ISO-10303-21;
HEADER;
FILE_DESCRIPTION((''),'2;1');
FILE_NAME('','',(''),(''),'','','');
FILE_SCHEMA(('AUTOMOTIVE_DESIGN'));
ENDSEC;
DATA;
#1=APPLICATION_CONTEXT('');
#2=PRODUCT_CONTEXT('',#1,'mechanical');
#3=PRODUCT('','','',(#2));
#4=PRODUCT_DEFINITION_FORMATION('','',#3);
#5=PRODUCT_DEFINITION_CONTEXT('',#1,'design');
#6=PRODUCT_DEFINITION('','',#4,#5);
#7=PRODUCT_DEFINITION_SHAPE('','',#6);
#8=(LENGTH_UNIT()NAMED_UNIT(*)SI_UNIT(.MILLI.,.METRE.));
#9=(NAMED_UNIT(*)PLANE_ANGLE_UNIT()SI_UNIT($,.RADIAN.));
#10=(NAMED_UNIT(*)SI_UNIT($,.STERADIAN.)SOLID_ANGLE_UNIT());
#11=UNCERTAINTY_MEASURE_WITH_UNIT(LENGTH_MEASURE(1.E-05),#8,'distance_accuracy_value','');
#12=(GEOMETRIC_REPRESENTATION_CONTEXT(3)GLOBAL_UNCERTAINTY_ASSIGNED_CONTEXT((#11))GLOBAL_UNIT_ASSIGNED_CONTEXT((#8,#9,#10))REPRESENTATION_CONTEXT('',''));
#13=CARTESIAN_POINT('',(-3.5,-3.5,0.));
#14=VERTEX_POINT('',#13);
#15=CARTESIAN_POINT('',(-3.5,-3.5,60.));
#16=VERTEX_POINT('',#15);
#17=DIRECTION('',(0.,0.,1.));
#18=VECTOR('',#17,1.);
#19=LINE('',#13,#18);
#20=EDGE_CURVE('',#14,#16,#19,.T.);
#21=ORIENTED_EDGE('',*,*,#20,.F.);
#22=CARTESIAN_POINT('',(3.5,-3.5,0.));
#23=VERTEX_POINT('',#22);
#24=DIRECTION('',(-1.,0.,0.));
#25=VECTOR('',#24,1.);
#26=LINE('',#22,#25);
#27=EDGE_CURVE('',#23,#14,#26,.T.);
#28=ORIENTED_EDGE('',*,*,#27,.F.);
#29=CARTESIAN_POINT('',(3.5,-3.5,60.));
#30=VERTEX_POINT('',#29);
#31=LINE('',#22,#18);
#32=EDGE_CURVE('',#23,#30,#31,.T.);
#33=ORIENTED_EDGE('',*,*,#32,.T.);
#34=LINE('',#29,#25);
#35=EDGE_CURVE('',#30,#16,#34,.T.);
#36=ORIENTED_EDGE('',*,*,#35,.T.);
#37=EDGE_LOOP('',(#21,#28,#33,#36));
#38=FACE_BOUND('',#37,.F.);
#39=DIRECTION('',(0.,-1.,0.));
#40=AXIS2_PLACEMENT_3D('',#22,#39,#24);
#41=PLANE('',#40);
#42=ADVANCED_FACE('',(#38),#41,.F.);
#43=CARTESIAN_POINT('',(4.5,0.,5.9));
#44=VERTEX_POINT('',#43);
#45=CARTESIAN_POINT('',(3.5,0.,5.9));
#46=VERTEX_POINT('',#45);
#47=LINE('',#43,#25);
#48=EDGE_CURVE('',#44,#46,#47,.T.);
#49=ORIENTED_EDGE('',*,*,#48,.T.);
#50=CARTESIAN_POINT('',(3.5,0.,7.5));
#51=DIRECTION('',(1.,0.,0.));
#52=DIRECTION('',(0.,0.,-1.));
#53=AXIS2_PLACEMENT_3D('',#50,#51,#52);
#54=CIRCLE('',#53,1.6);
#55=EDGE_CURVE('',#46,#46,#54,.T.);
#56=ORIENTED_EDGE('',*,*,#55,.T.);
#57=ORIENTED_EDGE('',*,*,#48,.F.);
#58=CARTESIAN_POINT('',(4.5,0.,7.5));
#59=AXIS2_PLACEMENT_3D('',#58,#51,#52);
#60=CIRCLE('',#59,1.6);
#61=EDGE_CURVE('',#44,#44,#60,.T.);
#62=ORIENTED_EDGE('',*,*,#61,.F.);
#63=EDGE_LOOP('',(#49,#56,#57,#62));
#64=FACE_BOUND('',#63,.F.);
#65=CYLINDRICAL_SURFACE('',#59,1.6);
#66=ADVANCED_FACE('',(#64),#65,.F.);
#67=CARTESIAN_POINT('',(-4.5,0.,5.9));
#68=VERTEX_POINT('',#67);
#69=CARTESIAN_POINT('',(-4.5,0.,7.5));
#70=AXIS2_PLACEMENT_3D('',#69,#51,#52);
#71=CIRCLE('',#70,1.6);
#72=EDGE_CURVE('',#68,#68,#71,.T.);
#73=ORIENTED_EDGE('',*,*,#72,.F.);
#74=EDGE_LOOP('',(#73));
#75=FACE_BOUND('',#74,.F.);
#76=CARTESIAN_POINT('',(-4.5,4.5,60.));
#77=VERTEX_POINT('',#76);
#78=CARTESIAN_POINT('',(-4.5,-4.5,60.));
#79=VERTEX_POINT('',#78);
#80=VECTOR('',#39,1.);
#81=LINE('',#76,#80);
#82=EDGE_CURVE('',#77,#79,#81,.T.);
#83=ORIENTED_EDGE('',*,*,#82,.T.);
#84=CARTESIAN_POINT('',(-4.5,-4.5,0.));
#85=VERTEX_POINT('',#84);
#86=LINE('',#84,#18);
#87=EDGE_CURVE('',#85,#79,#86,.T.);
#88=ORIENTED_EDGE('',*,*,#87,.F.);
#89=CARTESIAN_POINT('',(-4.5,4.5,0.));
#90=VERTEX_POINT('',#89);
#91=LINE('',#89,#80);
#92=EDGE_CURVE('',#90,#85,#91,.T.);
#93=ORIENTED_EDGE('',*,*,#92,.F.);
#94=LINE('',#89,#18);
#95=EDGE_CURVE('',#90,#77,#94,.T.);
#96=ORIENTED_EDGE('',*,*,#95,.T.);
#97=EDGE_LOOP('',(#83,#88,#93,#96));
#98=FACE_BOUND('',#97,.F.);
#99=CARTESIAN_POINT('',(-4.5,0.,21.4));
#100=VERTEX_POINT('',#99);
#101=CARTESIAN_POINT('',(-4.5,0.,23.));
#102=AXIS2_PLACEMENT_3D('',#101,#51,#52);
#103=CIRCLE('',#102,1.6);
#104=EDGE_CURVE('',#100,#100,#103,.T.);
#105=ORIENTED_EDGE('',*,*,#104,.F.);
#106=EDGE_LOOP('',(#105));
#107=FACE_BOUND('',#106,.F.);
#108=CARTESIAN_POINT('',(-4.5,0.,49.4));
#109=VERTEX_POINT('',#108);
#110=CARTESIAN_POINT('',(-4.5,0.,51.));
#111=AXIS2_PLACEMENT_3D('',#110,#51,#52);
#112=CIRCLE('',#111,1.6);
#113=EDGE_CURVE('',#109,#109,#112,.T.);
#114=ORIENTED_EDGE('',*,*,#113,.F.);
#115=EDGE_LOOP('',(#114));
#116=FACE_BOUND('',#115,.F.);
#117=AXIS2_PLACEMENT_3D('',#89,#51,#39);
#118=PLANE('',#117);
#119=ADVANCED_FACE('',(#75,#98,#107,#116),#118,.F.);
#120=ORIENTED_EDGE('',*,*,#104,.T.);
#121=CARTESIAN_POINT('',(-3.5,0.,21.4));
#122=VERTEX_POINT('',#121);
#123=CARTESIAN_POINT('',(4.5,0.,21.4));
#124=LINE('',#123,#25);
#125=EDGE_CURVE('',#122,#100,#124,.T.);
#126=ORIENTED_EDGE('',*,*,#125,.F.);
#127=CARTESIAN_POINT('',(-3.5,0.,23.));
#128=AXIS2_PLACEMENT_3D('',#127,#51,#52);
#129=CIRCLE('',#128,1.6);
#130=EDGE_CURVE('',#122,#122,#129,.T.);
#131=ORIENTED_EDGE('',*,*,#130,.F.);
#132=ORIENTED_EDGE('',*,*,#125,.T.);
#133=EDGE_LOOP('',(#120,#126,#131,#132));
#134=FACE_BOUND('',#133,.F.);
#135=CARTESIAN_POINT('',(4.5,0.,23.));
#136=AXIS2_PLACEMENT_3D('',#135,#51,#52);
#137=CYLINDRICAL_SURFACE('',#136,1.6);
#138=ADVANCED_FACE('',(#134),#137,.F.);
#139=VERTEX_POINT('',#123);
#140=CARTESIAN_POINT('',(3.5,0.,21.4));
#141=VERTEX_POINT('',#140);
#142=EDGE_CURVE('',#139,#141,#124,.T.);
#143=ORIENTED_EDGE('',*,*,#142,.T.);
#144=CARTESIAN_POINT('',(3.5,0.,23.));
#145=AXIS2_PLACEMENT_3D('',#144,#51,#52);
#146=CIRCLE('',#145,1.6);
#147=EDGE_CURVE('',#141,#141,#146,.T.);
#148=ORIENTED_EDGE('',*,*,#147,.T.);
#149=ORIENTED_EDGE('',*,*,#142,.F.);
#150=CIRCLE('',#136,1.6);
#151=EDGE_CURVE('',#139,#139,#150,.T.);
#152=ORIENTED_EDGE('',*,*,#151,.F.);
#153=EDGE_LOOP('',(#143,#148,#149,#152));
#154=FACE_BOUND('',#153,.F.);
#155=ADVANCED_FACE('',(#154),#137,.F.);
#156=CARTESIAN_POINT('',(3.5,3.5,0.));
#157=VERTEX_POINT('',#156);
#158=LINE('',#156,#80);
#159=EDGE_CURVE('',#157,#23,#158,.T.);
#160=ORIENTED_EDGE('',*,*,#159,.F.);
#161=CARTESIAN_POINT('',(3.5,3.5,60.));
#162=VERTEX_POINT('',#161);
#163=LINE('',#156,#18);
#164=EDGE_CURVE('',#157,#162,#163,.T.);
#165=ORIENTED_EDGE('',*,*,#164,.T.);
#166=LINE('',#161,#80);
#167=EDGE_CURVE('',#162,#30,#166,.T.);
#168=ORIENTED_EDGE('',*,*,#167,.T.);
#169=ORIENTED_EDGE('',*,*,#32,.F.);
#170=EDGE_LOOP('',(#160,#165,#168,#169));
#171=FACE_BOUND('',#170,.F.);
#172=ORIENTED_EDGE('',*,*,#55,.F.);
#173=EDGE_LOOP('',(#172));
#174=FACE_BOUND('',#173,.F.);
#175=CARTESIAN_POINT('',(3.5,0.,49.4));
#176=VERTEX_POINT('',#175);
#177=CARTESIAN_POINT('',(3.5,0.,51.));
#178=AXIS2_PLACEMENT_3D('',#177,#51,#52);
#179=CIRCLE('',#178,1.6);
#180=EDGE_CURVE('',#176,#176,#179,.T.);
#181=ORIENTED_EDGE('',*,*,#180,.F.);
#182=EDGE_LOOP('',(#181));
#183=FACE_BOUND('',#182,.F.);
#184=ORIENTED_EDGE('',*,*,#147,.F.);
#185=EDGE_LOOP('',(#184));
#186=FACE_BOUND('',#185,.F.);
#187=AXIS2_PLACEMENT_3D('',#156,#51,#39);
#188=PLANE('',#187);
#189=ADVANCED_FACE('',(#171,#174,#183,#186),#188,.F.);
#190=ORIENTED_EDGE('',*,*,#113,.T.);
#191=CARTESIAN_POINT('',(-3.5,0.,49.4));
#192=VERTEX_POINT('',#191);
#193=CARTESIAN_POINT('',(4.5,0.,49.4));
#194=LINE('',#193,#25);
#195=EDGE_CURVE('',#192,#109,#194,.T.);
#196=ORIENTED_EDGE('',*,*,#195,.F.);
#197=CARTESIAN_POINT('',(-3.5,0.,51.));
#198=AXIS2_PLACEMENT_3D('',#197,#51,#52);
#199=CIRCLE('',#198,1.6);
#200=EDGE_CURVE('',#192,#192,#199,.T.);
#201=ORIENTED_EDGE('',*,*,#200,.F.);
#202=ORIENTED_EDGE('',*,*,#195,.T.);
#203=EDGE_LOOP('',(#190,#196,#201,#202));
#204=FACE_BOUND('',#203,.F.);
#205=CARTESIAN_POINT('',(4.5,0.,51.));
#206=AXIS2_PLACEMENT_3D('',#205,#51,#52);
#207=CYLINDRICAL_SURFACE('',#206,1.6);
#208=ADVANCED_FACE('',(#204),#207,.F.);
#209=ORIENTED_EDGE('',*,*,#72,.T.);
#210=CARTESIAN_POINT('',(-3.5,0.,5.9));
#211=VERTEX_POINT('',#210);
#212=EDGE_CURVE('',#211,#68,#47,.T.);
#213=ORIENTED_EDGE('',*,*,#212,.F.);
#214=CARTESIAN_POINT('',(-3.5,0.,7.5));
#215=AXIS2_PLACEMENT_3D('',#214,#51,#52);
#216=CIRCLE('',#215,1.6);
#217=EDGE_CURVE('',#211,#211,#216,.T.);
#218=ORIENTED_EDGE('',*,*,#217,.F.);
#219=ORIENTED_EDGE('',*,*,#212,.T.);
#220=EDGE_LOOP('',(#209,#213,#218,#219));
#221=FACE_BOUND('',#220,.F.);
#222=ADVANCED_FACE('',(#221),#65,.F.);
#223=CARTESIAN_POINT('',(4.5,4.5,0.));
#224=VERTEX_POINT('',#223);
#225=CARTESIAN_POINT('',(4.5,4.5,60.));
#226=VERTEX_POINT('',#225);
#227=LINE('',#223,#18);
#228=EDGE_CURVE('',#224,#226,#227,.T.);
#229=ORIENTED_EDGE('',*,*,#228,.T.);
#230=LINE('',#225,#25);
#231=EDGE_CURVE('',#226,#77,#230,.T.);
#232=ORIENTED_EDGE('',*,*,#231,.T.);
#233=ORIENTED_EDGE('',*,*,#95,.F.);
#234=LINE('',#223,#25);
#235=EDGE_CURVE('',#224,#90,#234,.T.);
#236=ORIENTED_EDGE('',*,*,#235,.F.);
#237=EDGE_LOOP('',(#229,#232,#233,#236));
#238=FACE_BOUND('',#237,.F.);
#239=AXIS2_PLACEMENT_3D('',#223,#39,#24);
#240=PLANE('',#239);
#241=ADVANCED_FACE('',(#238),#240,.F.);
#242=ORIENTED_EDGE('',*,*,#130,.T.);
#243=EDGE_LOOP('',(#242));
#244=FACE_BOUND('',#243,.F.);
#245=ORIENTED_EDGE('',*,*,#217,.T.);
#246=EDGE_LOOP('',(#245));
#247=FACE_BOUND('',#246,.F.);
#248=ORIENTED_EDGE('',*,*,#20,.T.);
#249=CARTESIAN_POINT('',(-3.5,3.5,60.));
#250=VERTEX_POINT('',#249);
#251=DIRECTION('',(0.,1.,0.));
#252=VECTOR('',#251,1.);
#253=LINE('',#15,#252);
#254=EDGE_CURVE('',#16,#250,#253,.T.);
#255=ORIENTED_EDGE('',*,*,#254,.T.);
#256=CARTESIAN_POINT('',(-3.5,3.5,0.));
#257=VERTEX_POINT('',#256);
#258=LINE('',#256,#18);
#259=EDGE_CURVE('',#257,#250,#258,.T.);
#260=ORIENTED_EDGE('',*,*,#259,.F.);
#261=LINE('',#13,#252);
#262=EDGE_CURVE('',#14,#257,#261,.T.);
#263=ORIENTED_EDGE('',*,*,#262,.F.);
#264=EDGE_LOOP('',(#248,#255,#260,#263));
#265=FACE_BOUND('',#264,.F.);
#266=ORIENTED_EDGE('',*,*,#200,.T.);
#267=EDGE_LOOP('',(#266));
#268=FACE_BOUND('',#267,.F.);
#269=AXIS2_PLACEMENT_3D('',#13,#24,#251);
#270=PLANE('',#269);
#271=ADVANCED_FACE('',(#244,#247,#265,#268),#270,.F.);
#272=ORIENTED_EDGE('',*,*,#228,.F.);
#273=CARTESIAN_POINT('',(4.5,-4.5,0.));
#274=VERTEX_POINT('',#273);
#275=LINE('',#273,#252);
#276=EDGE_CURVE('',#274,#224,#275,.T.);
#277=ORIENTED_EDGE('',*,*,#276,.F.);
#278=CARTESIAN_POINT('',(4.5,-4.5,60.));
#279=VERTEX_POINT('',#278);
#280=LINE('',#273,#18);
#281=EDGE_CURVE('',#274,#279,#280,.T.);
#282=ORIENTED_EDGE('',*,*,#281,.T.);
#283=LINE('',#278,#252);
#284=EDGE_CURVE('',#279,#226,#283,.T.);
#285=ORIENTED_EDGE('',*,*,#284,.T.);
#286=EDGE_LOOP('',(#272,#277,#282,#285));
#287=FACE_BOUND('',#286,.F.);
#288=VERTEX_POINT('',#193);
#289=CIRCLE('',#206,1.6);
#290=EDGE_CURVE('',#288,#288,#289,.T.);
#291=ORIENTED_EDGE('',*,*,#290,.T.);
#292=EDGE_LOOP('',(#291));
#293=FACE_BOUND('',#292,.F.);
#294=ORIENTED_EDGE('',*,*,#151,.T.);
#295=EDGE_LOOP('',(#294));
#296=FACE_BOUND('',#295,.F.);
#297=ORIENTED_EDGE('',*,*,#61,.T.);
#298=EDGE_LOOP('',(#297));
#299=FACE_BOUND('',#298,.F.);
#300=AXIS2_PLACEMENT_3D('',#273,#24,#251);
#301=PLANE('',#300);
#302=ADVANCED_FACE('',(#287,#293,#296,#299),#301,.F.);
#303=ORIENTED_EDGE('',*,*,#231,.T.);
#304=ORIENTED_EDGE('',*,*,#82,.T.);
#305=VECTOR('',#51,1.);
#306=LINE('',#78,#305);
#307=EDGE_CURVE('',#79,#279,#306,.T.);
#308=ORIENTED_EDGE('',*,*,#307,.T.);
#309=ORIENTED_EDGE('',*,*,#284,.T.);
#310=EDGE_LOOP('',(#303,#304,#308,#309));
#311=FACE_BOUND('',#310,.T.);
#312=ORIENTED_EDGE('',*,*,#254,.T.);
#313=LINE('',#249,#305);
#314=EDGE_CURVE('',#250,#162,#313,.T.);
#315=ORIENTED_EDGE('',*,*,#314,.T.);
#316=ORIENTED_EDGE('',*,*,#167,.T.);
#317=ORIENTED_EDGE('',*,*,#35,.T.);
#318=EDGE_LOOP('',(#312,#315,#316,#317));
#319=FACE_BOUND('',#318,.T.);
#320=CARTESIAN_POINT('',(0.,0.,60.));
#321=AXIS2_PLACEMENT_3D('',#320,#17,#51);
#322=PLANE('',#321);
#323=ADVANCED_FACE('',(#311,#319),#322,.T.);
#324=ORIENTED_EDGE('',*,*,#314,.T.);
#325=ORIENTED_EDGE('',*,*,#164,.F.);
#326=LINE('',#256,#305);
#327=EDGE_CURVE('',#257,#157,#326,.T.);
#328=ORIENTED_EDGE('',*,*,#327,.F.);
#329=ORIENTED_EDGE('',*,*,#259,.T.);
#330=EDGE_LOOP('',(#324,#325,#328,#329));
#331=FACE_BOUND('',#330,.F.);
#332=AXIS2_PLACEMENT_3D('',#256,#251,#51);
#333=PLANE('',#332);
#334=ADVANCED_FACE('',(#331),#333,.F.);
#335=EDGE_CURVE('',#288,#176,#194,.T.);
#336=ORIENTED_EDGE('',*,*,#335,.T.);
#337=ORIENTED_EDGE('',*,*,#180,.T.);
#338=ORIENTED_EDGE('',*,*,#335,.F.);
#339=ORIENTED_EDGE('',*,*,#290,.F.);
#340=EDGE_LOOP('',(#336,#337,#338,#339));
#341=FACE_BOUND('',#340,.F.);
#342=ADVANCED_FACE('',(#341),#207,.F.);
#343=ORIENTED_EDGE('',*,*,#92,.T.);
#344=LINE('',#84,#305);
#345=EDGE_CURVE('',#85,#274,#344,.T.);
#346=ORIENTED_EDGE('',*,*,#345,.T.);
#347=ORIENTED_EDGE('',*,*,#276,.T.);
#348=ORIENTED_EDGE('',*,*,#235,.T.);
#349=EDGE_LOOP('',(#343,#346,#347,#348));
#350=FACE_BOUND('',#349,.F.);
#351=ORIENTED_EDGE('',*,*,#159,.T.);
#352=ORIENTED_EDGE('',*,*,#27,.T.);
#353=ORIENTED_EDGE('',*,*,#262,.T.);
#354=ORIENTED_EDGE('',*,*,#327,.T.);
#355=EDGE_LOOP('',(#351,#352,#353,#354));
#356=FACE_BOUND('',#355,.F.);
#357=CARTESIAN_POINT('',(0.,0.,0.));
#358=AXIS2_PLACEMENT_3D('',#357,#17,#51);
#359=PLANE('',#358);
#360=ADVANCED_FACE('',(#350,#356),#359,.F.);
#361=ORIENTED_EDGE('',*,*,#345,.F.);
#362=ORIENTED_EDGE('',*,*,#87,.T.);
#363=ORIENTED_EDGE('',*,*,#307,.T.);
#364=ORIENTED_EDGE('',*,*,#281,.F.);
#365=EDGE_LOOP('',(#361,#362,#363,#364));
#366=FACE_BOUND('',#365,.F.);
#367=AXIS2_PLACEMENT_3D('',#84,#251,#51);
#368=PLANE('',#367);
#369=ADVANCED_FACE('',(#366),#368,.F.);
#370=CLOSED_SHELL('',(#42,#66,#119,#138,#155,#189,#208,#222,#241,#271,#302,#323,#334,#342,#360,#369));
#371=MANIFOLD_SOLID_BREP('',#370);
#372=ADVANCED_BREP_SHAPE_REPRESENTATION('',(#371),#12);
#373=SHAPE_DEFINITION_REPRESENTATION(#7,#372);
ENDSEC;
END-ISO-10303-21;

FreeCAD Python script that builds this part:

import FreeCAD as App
import Part
import Sketcher
from FreeCAD import Vector
Q = App.Units.Quantity

doc = App.newDocument("Part")
body = doc.addObject("PartDesign::Body", "Body")

sketch1 = body.newObject("Sketcher::SketchObject", "Sketch")
sketch1.AttachmentSupport = (doc.getObject("XY_Plane"), [""])
sketch1.MapMode = "FlatFace"
sketch1.addGeometry([
    Part.LineSegment(Vector(4, -4, 0), Vector(4, 4, 0)),
    Part.LineSegment(Vector(4, 4, 0), Vector(-4, 4, 0)),
    Part.LineSegment(Vector(-4, 4, 0), Vector(-4, -4, 0)),
    Part.LineSegment(Vector(-4, -4, 0), Vector(4, -4, 0)),
    Part.LineSegment(Vector(-4, -4, 0), Vector(-4, 4, 0)),
    Part.LineSegment(Vector(-4, 4, 0), Vector(4, 4, 0)),
    Part.LineSegment(Vector(4, 4, 0), Vector(4, -4, 0)),
    Part.LineSegment(Vector(4, -4, 0), Vector(-4, -4, 0)),
], False)
sketch1.addConstraint([
    Sketcher.Constraint("Coincident", 0, 2, 1, 1),
    Sketcher.Constraint("Coincident", 1, 2, 2, 1),
    Sketcher.Constraint("Coincident", 2, 2, 3, 1),
    Sketcher.Constraint("Coincident", 3, 2, 0, 1),
    Sketcher.Constraint("Coincident", 4, 2, 5, 1),
    Sketcher.Constraint("Coincident", 5, 2, 6, 1),
    Sketcher.Constraint("Coincident", 6, 2, 7, 1),
    Sketcher.Constraint("Coincident", 7, 2, 4, 1),
    Sketcher.Constraint("Vertical", 0),
    Sketcher.Constraint("Horizontal", 1),
    Sketcher.Constraint("Vertical", 2),
    Sketcher.Constraint("Horizontal", 3),
    Sketcher.Constraint("Vertical", 4),
    Sketcher.Constraint("Horizontal", 5),
    Sketcher.Constraint("Vertical", 6),
    Sketcher.Constraint("Horizontal", 7),
    Sketcher.Constraint("Symmetric", 0, 2, 2, 2, -1, 1),
    Sketcher.Constraint("Symmetric", 4, 2, 6, 2, -1, 1),
    Sketcher.Constraint("Equal", 3, 0),
    Sketcher.Constraint("Equal", 7, 4),
    Sketcher.Constraint("DistanceX", 1, 2, 1, 1, Q("9 mm")),
    Sketcher.Constraint("DistanceX", 1, 2, 4, 2, Q("1 mm")),
])
pad1 = body.newObject("PartDesign::Pad", "Pad")
pad1.Profile = sketch1
pad1.Length = 60

sketch2 = body.newObject("Sketcher::SketchObject", "Sketch001")
sketch2.AttachmentSupport = (doc.getObject("YZ_Plane"), [""])
sketch2.MapMode = "FlatFace"
sketch2.AttachmentOffset = App.Placement(Vector(0, 0, 4.5), App.Rotation())
sketch2.addGeometry([
    Part.Circle(Vector(0, 7.5, 0), Vector(0, 0, 1), 1.6),
    Part.Circle(Vector(0, 23, 0), Vector(0, 0, 1), 1.6),
    Part.Circle(Vector(0, 51, 0), Vector(0, 0, 1), 1.6),
], False)
sketch2.addConstraint([
    Sketcher.Constraint("Equal", 0, 1),
    Sketcher.Constraint("Equal", 1, 2),
    Sketcher.Constraint("PointOnObject", 0, 3, -2),
    Sketcher.Constraint("PointOnObject", 1, 3, -2),
    Sketcher.Constraint("PointOnObject", 2, 3, -2),
    Sketcher.Constraint("Diameter", 0, Q("3.2 mm")),
    Sketcher.Constraint("DistanceY", 1, 3, 2, 3, Q("28 mm")),
    Sketcher.Constraint("DistanceY", -1, 1, 0, 3, Q("7.5 mm")),
    Sketcher.Constraint("DistanceY", 0, 3, 1, 3, Q("15.5 mm")),
])
pocket1 = body.newObject("PartDesign::Pocket", "Pocket")
pocket1.Profile = sketch2
pocket1.Type = "ThroughAll"

doc.recompute()
